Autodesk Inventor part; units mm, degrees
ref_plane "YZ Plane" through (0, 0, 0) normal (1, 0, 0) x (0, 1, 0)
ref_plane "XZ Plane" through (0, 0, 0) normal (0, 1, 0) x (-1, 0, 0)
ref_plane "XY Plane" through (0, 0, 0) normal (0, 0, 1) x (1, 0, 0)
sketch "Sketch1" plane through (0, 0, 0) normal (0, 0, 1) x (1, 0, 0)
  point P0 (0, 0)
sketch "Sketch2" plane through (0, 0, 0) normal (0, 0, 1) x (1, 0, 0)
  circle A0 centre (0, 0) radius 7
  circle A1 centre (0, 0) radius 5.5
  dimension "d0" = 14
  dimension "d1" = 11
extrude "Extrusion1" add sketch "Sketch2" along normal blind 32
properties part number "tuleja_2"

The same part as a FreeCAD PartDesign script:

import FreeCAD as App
import Part
import Sketcher

V = App.Vector
Q = App.Units.Quantity

doc = App.newDocument("Part")
body = doc.addObject("PartDesign::Body", "Body")

# Sketch on XY plane
sketch1 = body.newObject("Sketcher::SketchObject", "Sketch")
sketch1.AttachmentSupport = (doc.getObject("XY_Plane"), [""])
sketch1.MapMode = "FlatFace"
sketch1.addGeometry([
    Part.Circle(V(0, 0, 0), V(0, 0, 1), 7),
    Part.Circle(V(0, 0, 0), V(0, 0, 1), 6),
], False)
sketch1.addConstraint([
    Sketcher.Constraint("Coincident", 0, 3, -1, 1),
    Sketcher.Constraint("Coincident", 1, 3, -1, 1),
    Sketcher.Constraint("Diameter", 0, Q("14 mm")),
    Sketcher.Constraint("Diameter", 1, Q("11 mm")),
])
pad1 = body.newObject("PartDesign::Pad", "Pad")
pad1.Profile = sketch1
pad1.Length = 32

doc.recompute()
